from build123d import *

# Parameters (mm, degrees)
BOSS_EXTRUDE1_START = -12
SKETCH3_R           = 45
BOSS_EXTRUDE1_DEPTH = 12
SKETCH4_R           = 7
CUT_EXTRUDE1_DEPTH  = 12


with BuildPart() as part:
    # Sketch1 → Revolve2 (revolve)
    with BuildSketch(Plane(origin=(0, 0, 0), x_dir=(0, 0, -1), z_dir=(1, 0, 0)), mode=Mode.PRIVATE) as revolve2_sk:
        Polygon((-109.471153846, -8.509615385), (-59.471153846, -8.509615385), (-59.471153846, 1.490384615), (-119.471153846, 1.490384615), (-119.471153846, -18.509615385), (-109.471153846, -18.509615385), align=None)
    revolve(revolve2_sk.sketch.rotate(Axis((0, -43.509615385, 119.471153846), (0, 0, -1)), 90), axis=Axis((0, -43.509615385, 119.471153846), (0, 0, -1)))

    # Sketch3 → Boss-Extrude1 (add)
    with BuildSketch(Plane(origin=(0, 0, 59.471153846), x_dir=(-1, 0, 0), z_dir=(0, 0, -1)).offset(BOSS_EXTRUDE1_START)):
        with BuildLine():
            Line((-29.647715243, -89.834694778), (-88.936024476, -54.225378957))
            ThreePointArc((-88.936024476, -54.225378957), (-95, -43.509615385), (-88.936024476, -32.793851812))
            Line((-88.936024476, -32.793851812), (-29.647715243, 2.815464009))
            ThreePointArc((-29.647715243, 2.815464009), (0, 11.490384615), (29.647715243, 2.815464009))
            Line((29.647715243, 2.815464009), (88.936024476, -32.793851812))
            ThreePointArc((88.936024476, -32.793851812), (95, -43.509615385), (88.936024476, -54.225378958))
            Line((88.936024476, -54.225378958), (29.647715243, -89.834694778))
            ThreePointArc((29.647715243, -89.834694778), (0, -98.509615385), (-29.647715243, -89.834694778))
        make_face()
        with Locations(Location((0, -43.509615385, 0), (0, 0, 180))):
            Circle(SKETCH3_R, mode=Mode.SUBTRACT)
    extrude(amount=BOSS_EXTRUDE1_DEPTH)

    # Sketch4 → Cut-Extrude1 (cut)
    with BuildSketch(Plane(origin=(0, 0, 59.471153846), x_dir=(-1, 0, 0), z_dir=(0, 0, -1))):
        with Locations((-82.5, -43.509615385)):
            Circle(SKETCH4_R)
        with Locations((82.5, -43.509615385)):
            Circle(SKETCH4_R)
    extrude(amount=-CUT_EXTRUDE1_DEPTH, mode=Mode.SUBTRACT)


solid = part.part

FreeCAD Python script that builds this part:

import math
import FreeCAD as App
import Part
import Sketcher

V = App.Vector


def add_polygon(sketch, points):
    """Adds a closed chain of lines whose ends are joined by coincident constraints."""
    first, n = sketch.GeometryCount, len(points)
    for a, b in zip(points, points[1:] + points[:1]):
        sketch.addGeometry(Part.LineSegment(App.Vector(*a, 0), App.Vector(*b, 0)), False)
    for i in range(n):
        sketch.addConstraint(Sketcher.Constraint("Coincident", first + i, 2, first + (i + 1) % n, 1))

doc = App.newDocument("Part")
body = doc.addObject("PartDesign::Body", "Body")

sketch1 = body.newObject("Sketcher::SketchObject", "Sketch")
sketch1.AttachmentSupport = (doc.getObject("YZ_Plane"), [""])
sketch1.MapMode = "FlatFace"
add_polygon(sketch1, [(-8.509615, 109.471154), (-8.509615, 59.471154), (1.490385, 59.471154), (1.490385, 119.471154), (-18.509615, 119.471154), (-18.509615, 109.471154)])
sketch1.addGeometry(Part.LineSegment(V(-43.509615, 119.471154, 0), V(-43.509615, 59.471154, 0)), True)
sketch1.addConstraint(Sketcher.Constraint("Vertical", 0))
sketch1.addConstraint(Sketcher.Constraint("Horizontal", 1))
sketch1.addConstraint(Sketcher.Constraint("Vertical", 2))
sketch1.addConstraint(Sketcher.Constraint("Horizontal", 3))
sketch1.addConstraint(Sketcher.Constraint("Vertical", 4))
sketch1.addConstraint(Sketcher.Constraint("Horizontal", 5))
sketch1.addConstraint(Sketcher.Constraint("Vertical", 6))
sketch1.addConstraint(Sketcher.Constraint("Horizontal", 3, 2, 6, 1))
sketch1.addConstraint(Sketcher.Constraint("Horizontal", 1, 2, 6, 2))
sketch1.addConstraint(Sketcher.Constraint("Equal", 1, 5))
sketch1.addConstraint(Sketcher.Constraint("Equal", 5, 4))
sketch1.addConstraint(Sketcher.Constraint("DistanceX", 1, 1, 1, 2, 10.0))
sketch1.addConstraint(Sketcher.Constraint("DistanceY", 0, 2, 0, 1, 50.0))
sketch1.addConstraint(Sketcher.Constraint("DistanceX", 6, 1, 3, 2, 25.0))
sketch1.addConstraint(Sketcher.Constraint("DistanceX", 0, 2, -1, 1, 8.509615))
sketch1.addConstraint(Sketcher.Constraint("DistanceY", -1, 1, 0, 2, 59.471154))
revolution = body.newObject("PartDesign::Revolution", "Revolution")
revolution.Profile = sketch1
revolution.ReferenceAxis = (sketch1, ["Axis0"])
revolution.Angle = 360

sketch2 = body.newObject("Sketcher::SketchObject", "Sketch001")
sketch2.AttachmentSupport = (doc.getObject("XY_Plane"), [""])
sketch2.MapMode = "FlatFace"
sketch2.AttachmentOffset = App.Placement(V(0, 0, 71.471154), App.Rotation())
sketch2.addGeometry(Part.LineSegment(V(88.936024, -54.225379, 0), V(29.647715, -89.834695, 0)), False)
sketch2.addGeometry(Part.ArcOfCircle(Part.Circle(V(0, -43.509615, 0), V(0, 0, 1), 55), math.radians(-122.618949), math.radians(-57.381051)), False)
sketch2.addGeometry(Part.LineSegment(V(-29.647715, -89.834695, 0), V(-88.936024, -54.225379, 0)), False)
sketch2.addGeometry(Part.ArcOfCircle(Part.Circle(V(-82.5, -43.509615, 0), V(0, 0, 1), 12.5), math.radians(120.989565), math.radians(239.010435)), False)
sketch2.addGeometry(Part.LineSegment(V(-88.936024, -32.793852, 0), V(-29.647715, 2.815464, 0)), False)
sketch2.addGeometry(Part.ArcOfCircle(Part.Circle(V(0, -43.509615, 0), V(0, 0, 1), 55), math.radians(57.381051), math.radians(122.618949)), False)
sketch2.addGeometry(Part.LineSegment(V(29.647715, 2.815464, 0), V(88.936024, -32.793852, 0)), False)
sketch2.addGeometry(Part.ArcOfCircle(Part.Circle(V(82.5, -43.509615, 0), V(0, 0, 1), 12.5), math.radians(-59.010435), math.radians(59.010435)), False)
sketch2.addGeometry(Part.Circle(V(0, -43.509615, 0), V(0, 0, 1), 45), False)
sketch2.addConstraint(Sketcher.Constraint("Coincident", 0, 2, 1, 2))
sketch2.addConstraint(Sketcher.Constraint("Coincident", 1, 1, 2, 1))
sketch2.addConstraint(Sketcher.Constraint("Coincident", 2, 2, 3, 2))
sketch2.addConstraint(Sketcher.Constraint("Coincident", 3, 1, 4, 1))
sketch2.addConstraint(Sketcher.Constraint("Coincident", 4, 2, 5, 2))
sketch2.addConstraint(Sketcher.Constraint("Coincident", 5, 1, 6, 1))
sketch2.addConstraint(Sketcher.Constraint("Coincident", 6, 2, 7, 2))
sketch2.addConstraint(Sketcher.Constraint("Coincident", 7, 1, 0, 1))
sketch2.addConstraint(Sketcher.Constraint("Coincident", 5, 3, 1, 3))
sketch2.addConstraint(Sketcher.Constraint("Coincident", 8, 3, 1, 3))
sketch2.addConstraint(Sketcher.Constraint("PointOnObject", 1, 3, -2))
sketch2.addConstraint(Sketcher.Constraint("Diameter", 8, 90.0))
sketch2.addConstraint(Sketcher.Constraint("Radius", 1, 55.0))
sketch2.addConstraint(Sketcher.Constraint("Radius", 5, 55.0))
sketch2.addConstraint(Sketcher.Constraint("Radius", 3, 12.5))
sketch2.addConstraint(Sketcher.Constraint("Radius", 7, 12.5))
sketch2.addConstraint(Sketcher.Constraint("DistanceX", 3, 3, 7, 3, 165.0))
sketch2.addConstraint(Sketcher.Constraint("DistanceX", 3, 3, -1, 1, 82.5))
sketch2.addConstraint(Sketcher.Constraint("DistanceY", 2, 2, -1, 1, 54.225379))
sketch2.addConstraint(Sketcher.Constraint("DistanceY", 3, 1, -1, 1, 32.793852))
sketch2.addConstraint(Sketcher.Constraint("DistanceY", 6, 2, -1, 1, 32.793852))
sketch2.addConstraint(Sketcher.Constraint("DistanceY", 7, 1, -1, 1, 54.225379))
sketch2.addConstraint(Sketcher.Constraint("DistanceY", 0, 2, 1, 3, 46.325079))
sketch2.addConstraint(Sketcher.Constraint("DistanceY", 0, 2, 7, 3, 46.325079))
sketch2.addConstraint(Sketcher.Constraint("DistanceY", 0, 2, 3, 3, 46.325079))
sketch2.addConstraint(Sketcher.Constraint("DistanceY", 1, 1, 1, 3, 46.325079))
sketch2.addConstraint(Sketcher.Constraint("DistanceX", 2, 2, 1, 1, 59.288309))
sketch2.addConstraint(Sketcher.Constraint("DistanceY", 5, 3, 4, 2, 46.325079))
sketch2.addConstraint(Sketcher.Constraint("DistanceY", 5, 3, 5, 1, 46.325079))
pad1 = body.newObject("PartDesign::Pad", "Pad")
pad1.Profile = sketch2
pad1.Length = 12
pad1.Reversed = True

sketch3 = body.newObject("Sketcher::SketchObject", "Sketch002")
sketch3.AttachmentSupport = (doc.getObject("XY_Plane"), [""])
sketch3.MapMode = "FlatFace"
sketch3.AttachmentOffset = App.Placement(V(0, 0, 59.471154), App.Rotation())
sketch3.addGeometry(Part.Circle(V(82.5, -43.509615, 0), V(0, 0, 1), 7), False)
sketch3.addGeometry(Part.Circle(V(-82.5, -43.509615, 0), V(0, 0, 1), 7), False)
sketch3.addConstraint(Sketcher.Constraint("Equal", 0, 1))
sketch3.addConstraint(Sketcher.Constraint("Symmetric", 0, 3, 1, 3, -2))
sketch3.addConstraint(Sketcher.Constraint("Diameter", 0, 14.0))
sketch3.addConstraint(Sketcher.Constraint("DistanceX", 1, 3, 0, 3, 165.0))
sketch3.addConstraint(Sketcher.Constraint("DistanceY", 0, 3, -1, 1, 43.509615))
pocket1 = body.newObject("PartDesign::Pocket", "Pocket")
pocket1.Profile = sketch3
pocket1.Length = 12
pocket1.Reversed = True

doc.recompute()
